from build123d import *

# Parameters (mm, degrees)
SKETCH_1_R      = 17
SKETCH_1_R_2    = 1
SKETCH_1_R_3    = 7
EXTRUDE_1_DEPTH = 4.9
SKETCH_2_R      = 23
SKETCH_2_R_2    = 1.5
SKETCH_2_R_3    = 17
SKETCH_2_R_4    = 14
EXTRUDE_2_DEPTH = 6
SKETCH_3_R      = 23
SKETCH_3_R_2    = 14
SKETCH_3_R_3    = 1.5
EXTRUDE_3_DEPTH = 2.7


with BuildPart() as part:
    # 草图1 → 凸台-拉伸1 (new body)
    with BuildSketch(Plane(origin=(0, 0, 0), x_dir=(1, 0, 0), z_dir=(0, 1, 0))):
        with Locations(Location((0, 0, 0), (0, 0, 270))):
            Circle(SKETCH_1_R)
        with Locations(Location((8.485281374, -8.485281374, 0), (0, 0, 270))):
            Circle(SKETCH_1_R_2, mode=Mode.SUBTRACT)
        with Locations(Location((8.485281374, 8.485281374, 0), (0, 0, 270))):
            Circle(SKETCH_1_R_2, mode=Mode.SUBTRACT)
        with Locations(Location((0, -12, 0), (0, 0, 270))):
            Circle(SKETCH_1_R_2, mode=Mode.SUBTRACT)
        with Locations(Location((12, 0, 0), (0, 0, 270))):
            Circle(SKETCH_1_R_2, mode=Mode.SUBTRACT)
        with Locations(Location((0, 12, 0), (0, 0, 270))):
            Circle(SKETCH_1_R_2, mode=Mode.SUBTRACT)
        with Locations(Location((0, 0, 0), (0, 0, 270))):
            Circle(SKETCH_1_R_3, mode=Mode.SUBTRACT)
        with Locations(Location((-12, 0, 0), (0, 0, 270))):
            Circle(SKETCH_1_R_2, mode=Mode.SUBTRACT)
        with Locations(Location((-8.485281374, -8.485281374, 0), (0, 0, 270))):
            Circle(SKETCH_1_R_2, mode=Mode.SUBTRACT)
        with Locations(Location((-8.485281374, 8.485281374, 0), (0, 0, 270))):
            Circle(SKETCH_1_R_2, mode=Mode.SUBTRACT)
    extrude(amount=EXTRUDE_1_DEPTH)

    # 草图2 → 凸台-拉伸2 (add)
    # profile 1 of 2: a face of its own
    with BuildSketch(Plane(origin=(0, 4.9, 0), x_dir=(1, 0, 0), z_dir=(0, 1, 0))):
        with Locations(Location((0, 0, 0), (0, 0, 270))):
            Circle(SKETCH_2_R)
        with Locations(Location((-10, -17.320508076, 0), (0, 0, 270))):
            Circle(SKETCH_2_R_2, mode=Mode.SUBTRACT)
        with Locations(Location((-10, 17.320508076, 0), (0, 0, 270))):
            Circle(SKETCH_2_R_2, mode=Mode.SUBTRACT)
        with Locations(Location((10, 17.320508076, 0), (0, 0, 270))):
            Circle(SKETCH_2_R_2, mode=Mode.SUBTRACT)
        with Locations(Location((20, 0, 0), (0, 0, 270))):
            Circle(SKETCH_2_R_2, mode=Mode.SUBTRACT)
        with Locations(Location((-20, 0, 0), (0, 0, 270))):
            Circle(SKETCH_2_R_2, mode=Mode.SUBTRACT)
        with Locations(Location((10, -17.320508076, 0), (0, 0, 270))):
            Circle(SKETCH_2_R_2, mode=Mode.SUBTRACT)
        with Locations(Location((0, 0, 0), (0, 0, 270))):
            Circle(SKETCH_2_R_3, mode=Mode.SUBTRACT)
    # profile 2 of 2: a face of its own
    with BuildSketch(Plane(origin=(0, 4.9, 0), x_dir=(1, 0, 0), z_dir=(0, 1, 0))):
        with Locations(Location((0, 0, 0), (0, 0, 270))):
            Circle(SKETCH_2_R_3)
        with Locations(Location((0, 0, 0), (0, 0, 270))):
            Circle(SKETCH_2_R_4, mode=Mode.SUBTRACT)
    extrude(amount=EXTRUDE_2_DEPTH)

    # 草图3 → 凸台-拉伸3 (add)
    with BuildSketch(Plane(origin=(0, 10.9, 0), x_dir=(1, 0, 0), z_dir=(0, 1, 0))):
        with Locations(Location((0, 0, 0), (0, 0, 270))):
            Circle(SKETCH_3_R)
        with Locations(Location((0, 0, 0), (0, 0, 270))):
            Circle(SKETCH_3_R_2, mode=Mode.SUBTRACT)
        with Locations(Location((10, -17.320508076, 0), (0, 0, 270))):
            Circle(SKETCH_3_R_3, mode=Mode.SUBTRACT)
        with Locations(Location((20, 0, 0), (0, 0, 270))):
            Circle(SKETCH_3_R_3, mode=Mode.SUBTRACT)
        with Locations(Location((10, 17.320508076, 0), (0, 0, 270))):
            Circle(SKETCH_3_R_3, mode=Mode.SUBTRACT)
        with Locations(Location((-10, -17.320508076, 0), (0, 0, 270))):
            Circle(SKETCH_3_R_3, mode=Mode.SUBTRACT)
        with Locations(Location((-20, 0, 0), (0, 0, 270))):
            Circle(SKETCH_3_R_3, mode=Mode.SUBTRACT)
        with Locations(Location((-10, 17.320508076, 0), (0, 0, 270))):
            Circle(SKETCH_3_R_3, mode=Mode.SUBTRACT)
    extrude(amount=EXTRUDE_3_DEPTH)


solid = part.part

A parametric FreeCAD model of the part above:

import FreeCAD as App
import Part
import Sketcher

doc = App.newDocument("Part")
body = doc.addObject("PartDesign::Body", "Body")

# Sketch on XZ plane
sketch1 = doc.addObject("Sketcher::SketchObject", "Sketch")
body.addObject(sketch1)
sketch1.AttachmentSupport = (doc.XZ_Plane, [""])
sketch1.MapMode = "FlatFace"
sketch1.addGeometry(Part.Circle(App.Vector(0, 0, 0), App.Vector(0, 0, 1), 17), False)
sketch1.addGeometry(Part.Circle(App.Vector(-8.5, -8.5, 0), App.Vector(0, 0, 1), 1), False)
sketch1.addGeometry(Part.Circle(App.Vector(0, -12, 0), App.Vector(0, 0, 1), 1), False)
sketch1.addGeometry(Part.Circle(App.Vector(-12, 0, 0), App.Vector(0, 0, 1), 1), False)
sketch1.addGeometry(Part.Circle(App.Vector(-8.5, 8.5, 0), App.Vector(0, 0, 1), 1), False)
sketch1.addGeometry(Part.Circle(App.Vector(8.5, -8.5, 0), App.Vector(0, 0, 1), 1), False)
sketch1.addGeometry(Part.Circle(App.Vector(12, 0, 0), App.Vector(0, 0, 1), 1), False)
sketch1.addGeometry(Part.Circle(App.Vector(0, 0, 0), App.Vector(0, 0, 1), 7), False)
sketch1.addGeometry(Part.Circle(App.Vector(0, 12, 0), App.Vector(0, 0, 1), 1), False)
sketch1.addGeometry(Part.Circle(App.Vector(8.5, 8.5, 0), App.Vector(0, 0, 1), 1), False)
sketch1.addConstraint(Sketcher.Constraint("Coincident", 0, 3, -1, 1))
sketch1.addConstraint(Sketcher.Constraint("Coincident", 7, 3, -1, 1))
sketch1.addConstraint(Sketcher.Constraint("Equal", 1, 2))
sketch1.addConstraint(Sketcher.Constraint("Equal", 2, 3))
sketch1.addConstraint(Sketcher.Constraint("Equal", 3, 4))
sketch1.addConstraint(Sketcher.Constraint("Equal", 4, 5))
sketch1.addConstraint(Sketcher.Constraint("Equal", 5, 6))
sketch1.addConstraint(Sketcher.Constraint("Equal", 6, 8))
sketch1.addConstraint(Sketcher.Constraint("Equal", 8, 9))
sketch1.addConstraint(Sketcher.Constraint("Symmetric", 4, 3, 5, 3, -1, 1))
sketch1.addConstraint(Sketcher.Constraint("Symmetric", 3, 3, 6, 3, -1, 1))
sketch1.addConstraint(Sketcher.Constraint("Symmetric", 2, 3, 8, 3, -1, 1))
sketch1.addConstraint(Sketcher.Constraint("Symmetric", 1, 3, 9, 3, -1, 1))
sketch1.addConstraint(Sketcher.Constraint("Symmetric", 1, 3, 5, 3, -2))
sketch1.addConstraint(Sketcher.Constraint("PointOnObject", 2, 3, -2))
sketch1.addConstraint(Sketcher.Constraint("PointOnObject", 3, 3, -1))
sketch1.addConstraint(Sketcher.Constraint("Diameter", 0, 34.0))
sketch1.addConstraint(Sketcher.Constraint("Diameter", 1, 2.0))
sketch1.addConstraint(Sketcher.Constraint("Diameter", 7, 14.0))
sketch1.addConstraint(Sketcher.Constraint("DistanceY", 2, 3, -1, 1, 12.0))
sketch1.addConstraint(Sketcher.Constraint("DistanceX", 3, 3, -1, 1, 12.0))
sketch1.addConstraint(Sketcher.Constraint("DistanceX", 1, 3, -1, 1, 8.485281))
sketch1.addConstraint(Sketcher.Constraint("DistanceY", 1, 3, -1, 1, 8.485281))
pad1 = doc.addObject("PartDesign::Pad", "Pad")
body.addObject(pad1)
pad1.Profile = sketch1
pad1.Length = 4.9
pad1.Reversed = True

# Sketch on XZ plane
sketch2 = doc.addObject("Sketcher::SketchObject", "Sketch001")
body.addObject(sketch2)
sketch2.AttachmentSupport = (doc.XZ_Plane, [""])
sketch2.MapMode = "FlatFace"
sketch2.AttachmentOffset = App.Placement(App.Vector(0, 0, -4.9), App.Rotation())
sketch2.addGeometry(Part.Circle(App.Vector(0, 0, 0), App.Vector(0, 0, 1), 23), False)
sketch2.addGeometry(Part.Circle(App.Vector(-10, -17.3, 0), App.Vector(0, 0, 1), 1.5), False)
sketch2.addGeometry(Part.Circle(App.Vector(-20, 0, 0), App.Vector(0, 0, 1), 1.5), False)
sketch2.addGeometry(Part.Circle(App.Vector(-10, 17.3, 0), App.Vector(0, 0, 1), 1.5), False)
sketch2.addGeometry(Part.Circle(App.Vector(10, -17.3, 0), App.Vector(0, 0, 1), 1.5), False)
sketch2.addGeometry(Part.Circle(App.Vector(20, 0, 0), App.Vector(0, 0, 1), 1.5), False)
sketch2.addGeometry(Part.Circle(App.Vector(10, 17.3, 0), App.Vector(0, 0, 1), 1.5), False)
sketch2.addGeometry(Part.Circle(App.Vector(0, 0, 0), App.Vector(0, 0, 1), 14), False)
sketch2.addConstraint(Sketcher.Constraint("Coincident", 0, 3, -1, 1))
sketch2.addConstraint(Sketcher.Constraint("Coincident", 7, 3, -1, 1))
sketch2.addConstraint(Sketcher.Constraint("Equal", 1, 2))
sketch2.addConstraint(Sketcher.Constraint("Equal", 2, 3))
sketch2.addConstraint(Sketcher.Constraint("Equal", 3, 4))
sketch2.addConstraint(Sketcher.Constraint("Equal", 4, 5))
sketch2.addConstraint(Sketcher.Constraint("Equal", 5, 6))
sketch2.addConstraint(Sketcher.Constraint("Symmetric", 3, 3, 4, 3, -1, 1))
sketch2.addConstraint(Sketcher.Constraint("Symmetric", 2, 3, 5, 3, -1, 1))
sketch2.addConstraint(Sketcher.Constraint("Symmetric", 1, 3, 6, 3, -1, 1))
sketch2.addConstraint(Sketcher.Constraint("Symmetric", 1, 3, 4, 3, -2))
sketch2.addConstraint(Sketcher.Constraint("PointOnObject", 2, 3, -1))
sketch2.addConstraint(Sketcher.Constraint("Diameter", 0, 46.0))
sketch2.addConstraint(Sketcher.Constraint("Diameter", 1, 3.0))
sketch2.addConstraint(Sketcher.Constraint("Diameter", 7, 28.0))
sketch2.addConstraint(Sketcher.Constraint("DistanceX", 1, 3, -1, 1, 10.0))
sketch2.addConstraint(Sketcher.Constraint("DistanceX", 2, 3, -1, 1, 20.0))
sketch2.addConstraint(Sketcher.Constraint("DistanceY", 1, 3, -1, 1, 17.320508))
pad2 = doc.addObject("PartDesign::Pad", "Pad001")
body.addObject(pad2)
pad2.Profile = sketch2
pad2.Length = 6
pad2.Reversed = True

# Sketch on XZ plane
sketch3 = doc.addObject("Sketcher::SketchObject", "Sketch002")
body.addObject(sketch3)
sketch3.AttachmentSupport = (doc.XZ_Plane, [""])
sketch3.MapMode = "FlatFace"
sketch3.AttachmentOffset = App.Placement(App.Vector(0, 0, -10.9), App.Rotation())
sketch3.addGeometry(Part.Circle(App.Vector(0, 0, 0), App.Vector(0, 0, 1), 23), False)
sketch3.addGeometry(Part.Circle(App.Vector(-10, -17.3, 0), App.Vector(0, 0, 1), 1.5), False)
sketch3.addGeometry(Part.Circle(App.Vector(-20, 0, 0), App.Vector(0, 0, 1), 1.5), False)
sketch3.addGeometry(Part.Circle(App.Vector(-10, 17.3, 0), App.Vector(0, 0, 1), 1.5), False)
sketch3.addGeometry(Part.Circle(App.Vector(10, -17.3, 0), App.Vector(0, 0, 1), 1.5), False)
sketch3.addGeometry(Part.Circle(App.Vector(20, 0, 0), App.Vector(0, 0, 1), 1.5), False)
sketch3.addGeometry(Part.Circle(App.Vector(0, 0, 0), App.Vector(0, 0, 1), 14), False)
sketch3.addGeometry(Part.Circle(App.Vector(10, 17.3, 0), App.Vector(0, 0, 1), 1.5), False)
sketch3.addConstraint(Sketcher.Constraint("Coincident", 0, 3, -1, 1))
sketch3.addConstraint(Sketcher.Constraint("Coincident", 6, 3, -1, 1))
sketch3.addConstraint(Sketcher.Constraint("Equal", 1, 2))
sketch3.addConstraint(Sketcher.Constraint("Equal", 2, 3))
sketch3.addConstraint(Sketcher.Constraint("Equal", 3, 4))
sketch3.addConstraint(Sketcher.Constraint("Equal", 4, 5))
sketch3.addConstraint(Sketcher.Constraint("Equal", 5, 7))
sketch3.addConstraint(Sketcher.Constraint("Symmetric", 3, 3, 4, 3, -1, 1))
sketch3.addConstraint(Sketcher.Constraint("Symmetric", 2, 3, 5, 3, -1, 1))
sketch3.addConstraint(Sketcher.Constraint("Symmetric", 1, 3, 7, 3, -1, 1))
sketch3.addConstraint(Sketcher.Constraint("Symmetric", 1, 3, 4, 3, -2))
sketch3.addConstraint(Sketcher.Constraint("PointOnObject", 2, 3, -1))
sketch3.addConstraint(Sketcher.Constraint("Diameter", 0, 46.0))
sketch3.addConstraint(Sketcher.Constraint("Diameter", 1, 3.0))
sketch3.addConstraint(Sketcher.Constraint("Diameter", 6, 28.0))
sketch3.addConstraint(Sketcher.Constraint("DistanceX", 1, 3, -1, 1, 10.0))
sketch3.addConstraint(Sketcher.Constraint("DistanceX", 2, 3, -1, 1, 20.0))
sketch3.addConstraint(Sketcher.Constraint("DistanceY", 1, 3, -1, 1, 17.320508))
pad3 = doc.addObject("PartDesign::Pad", "Pad002")
body.addObject(pad3)
pad3.Profile = sketch3
pad3.Length = 2.7
pad3.Reversed = True

doc.recompute()
